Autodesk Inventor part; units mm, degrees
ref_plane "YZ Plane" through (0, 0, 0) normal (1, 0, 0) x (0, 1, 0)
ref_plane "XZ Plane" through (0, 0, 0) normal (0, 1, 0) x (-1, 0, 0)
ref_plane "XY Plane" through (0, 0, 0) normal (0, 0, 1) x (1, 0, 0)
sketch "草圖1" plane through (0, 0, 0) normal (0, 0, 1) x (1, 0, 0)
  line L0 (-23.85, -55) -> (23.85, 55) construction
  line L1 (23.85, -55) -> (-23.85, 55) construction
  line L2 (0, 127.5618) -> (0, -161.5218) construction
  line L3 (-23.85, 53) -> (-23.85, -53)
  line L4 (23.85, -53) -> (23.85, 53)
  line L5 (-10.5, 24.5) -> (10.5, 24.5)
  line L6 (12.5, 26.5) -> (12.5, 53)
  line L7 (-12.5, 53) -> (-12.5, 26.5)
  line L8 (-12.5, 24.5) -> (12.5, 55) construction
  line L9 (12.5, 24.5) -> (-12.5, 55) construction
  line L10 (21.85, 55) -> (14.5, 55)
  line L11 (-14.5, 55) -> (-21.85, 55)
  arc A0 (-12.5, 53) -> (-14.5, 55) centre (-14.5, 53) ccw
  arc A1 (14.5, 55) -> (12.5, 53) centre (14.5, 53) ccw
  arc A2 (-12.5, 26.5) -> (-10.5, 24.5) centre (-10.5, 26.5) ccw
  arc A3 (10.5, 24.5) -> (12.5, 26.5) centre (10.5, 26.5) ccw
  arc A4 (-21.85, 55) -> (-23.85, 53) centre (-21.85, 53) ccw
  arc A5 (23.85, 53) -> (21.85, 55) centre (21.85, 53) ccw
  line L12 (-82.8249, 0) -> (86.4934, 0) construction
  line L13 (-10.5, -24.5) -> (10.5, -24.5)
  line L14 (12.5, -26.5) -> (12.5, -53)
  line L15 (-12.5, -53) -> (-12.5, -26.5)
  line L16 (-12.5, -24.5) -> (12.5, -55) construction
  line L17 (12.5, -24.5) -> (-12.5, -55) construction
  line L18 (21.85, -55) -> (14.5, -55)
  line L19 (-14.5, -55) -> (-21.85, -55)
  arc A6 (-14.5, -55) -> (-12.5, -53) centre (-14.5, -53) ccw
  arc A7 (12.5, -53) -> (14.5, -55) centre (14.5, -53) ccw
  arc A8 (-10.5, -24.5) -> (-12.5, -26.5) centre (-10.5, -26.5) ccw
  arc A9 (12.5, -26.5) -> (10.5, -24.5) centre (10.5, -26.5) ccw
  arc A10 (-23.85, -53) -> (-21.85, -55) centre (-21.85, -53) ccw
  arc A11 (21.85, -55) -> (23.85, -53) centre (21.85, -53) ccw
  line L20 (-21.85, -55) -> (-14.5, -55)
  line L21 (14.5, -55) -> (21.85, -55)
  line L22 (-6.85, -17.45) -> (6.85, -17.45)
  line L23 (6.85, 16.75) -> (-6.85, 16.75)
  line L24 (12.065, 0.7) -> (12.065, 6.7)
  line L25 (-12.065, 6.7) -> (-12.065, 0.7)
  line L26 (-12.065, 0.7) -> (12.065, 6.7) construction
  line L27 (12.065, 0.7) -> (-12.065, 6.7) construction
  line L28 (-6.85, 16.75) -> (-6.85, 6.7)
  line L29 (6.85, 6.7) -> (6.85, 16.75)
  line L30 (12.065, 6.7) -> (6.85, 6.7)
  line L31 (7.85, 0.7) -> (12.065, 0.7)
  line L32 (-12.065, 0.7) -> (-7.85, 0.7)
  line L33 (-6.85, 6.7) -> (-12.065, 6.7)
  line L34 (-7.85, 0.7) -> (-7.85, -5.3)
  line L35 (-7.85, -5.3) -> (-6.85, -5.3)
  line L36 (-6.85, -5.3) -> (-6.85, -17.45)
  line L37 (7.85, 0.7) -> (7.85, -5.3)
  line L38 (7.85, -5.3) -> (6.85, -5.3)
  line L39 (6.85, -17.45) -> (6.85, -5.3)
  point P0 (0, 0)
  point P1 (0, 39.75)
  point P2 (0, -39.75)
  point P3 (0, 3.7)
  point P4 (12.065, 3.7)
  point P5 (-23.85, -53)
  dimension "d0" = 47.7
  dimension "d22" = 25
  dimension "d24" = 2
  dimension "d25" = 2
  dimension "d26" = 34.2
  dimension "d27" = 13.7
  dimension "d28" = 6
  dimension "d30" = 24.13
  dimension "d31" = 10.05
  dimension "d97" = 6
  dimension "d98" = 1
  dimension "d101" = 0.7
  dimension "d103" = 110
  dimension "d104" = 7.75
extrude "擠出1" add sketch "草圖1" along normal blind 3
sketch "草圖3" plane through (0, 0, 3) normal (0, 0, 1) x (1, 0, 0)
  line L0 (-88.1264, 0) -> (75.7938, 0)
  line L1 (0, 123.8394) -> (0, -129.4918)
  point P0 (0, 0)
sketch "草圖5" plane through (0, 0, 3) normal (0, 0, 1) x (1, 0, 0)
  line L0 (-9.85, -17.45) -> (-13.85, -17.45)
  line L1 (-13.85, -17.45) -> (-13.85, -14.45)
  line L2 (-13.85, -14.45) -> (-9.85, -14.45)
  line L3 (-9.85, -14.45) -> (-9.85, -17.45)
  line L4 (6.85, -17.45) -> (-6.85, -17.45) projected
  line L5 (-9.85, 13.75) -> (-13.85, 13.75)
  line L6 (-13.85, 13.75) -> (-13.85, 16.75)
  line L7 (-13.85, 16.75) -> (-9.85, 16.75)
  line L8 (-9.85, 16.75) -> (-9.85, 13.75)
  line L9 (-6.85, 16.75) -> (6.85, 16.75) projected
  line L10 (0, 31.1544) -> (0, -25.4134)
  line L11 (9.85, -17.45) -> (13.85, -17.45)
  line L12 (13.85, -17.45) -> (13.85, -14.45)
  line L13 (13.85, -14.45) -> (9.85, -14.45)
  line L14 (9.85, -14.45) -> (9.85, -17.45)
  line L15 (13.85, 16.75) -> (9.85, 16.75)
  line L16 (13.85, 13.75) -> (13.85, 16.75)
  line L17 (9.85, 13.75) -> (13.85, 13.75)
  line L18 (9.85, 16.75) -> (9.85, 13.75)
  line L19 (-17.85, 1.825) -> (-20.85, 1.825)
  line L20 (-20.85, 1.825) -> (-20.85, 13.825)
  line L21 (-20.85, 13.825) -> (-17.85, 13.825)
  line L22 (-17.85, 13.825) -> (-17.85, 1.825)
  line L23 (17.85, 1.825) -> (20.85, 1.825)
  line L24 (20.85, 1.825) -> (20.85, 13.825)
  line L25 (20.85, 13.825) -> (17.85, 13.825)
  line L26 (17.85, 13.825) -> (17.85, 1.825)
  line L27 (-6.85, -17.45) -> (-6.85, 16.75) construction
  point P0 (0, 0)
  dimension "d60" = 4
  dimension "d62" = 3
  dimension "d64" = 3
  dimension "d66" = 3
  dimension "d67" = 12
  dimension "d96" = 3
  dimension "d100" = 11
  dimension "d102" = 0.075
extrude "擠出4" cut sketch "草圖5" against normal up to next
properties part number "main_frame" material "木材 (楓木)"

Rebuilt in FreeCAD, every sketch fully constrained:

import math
import FreeCAD as App
import Part
import Sketcher

V = App.Vector
Q = App.Units.Quantity


def add_polygon(sketch, points):
    """Adds a closed chain of lines whose ends are joined by coincident constraints."""
    first, n = sketch.GeometryCount, len(points)
    for a, b in zip(points, points[1:] + points[:1]):
        sketch.addGeometry(Part.LineSegment(App.Vector(*a, 0), App.Vector(*b, 0)), False)
    for i in range(n):
        sketch.addConstraint(Sketcher.Constraint("Coincident", first + i, 2, first + (i + 1) % n, 1))

doc = App.newDocument("Part")
body = doc.addObject("PartDesign::Body", "Body")

# Sketch on XY plane
sketch1 = body.newObject("Sketcher::SketchObject", "Sketch")
sketch1.AttachmentSupport = (doc.getObject("XY_Plane"), [""])
sketch1.MapMode = "FlatFace"
sketch1.addGeometry(Part.ArcOfCircle(Part.Circle(V(-21.85, 53, 0), V(0, 0, 1), 2), math.radians(90), math.radians(180)), False)  # 0
sketch1.addGeometry(Part.LineSegment(V(-23.85, 53, 0), V(-23.85, -53, 0)), False)  # 1
sketch1.addGeometry(Part.ArcOfCircle(Part.Circle(V(-21.85, -53, 0), V(0, 0, 1), 2), math.radians(180), math.radians(270)), False)  # 2
sketch1.addGeometry(Part.LineSegment(V(-21.85, -55, 0), V(-14.5, -55, 0)), False)  # 3
sketch1.addGeometry(Part.ArcOfCircle(Part.Circle(V(-14.5, -53, 0), V(0, 0, 1), 2), math.radians(-90), math.radians(0)), False)  # 4
sketch1.addGeometry(Part.LineSegment(V(-12.5, -53, 0), V(-12.5, -26.5, 0)), False)  # 5
sketch1.addGeometry(Part.ArcOfCircle(Part.Circle(V(-10.5, -26.5, 0), V(0, 0, 1), 2), math.radians(90), math.radians(180)), False)  # 6
sketch1.addGeometry(Part.LineSegment(V(-10.5, -24.5, 0), V(10.5, -24.5, 0)), False)  # 7
sketch1.addGeometry(Part.ArcOfCircle(Part.Circle(V(10.5, -26.5, 0), V(0, 0, 1), 2), math.radians(0), math.radians(90)), False)  # 8
sketch1.addGeometry(Part.LineSegment(V(12.5, -26.5, 0), V(12.5, -53, 0)), False)  # 9
sketch1.addGeometry(Part.ArcOfCircle(Part.Circle(V(14.5, -53, 0), V(0, 0, 1), 2), math.radians(180), math.radians(270)), False)  # 10
sketch1.addGeometry(Part.LineSegment(V(14.5, -55, 0), V(21.85, -55, 0)), False)  # 11
sketch1.addGeometry(Part.ArcOfCircle(Part.Circle(V(21.85, -53, 0), V(0, 0, 1), 2), math.radians(-90), math.radians(0)), False)  # 12
sketch1.addGeometry(Part.LineSegment(V(23.85, -53, 0), V(23.85, 53, 0)), False)  # 13
sketch1.addGeometry(Part.ArcOfCircle(Part.Circle(V(21.85, 53, 0), V(0, 0, 1), 2), math.radians(0), math.radians(90)), False)  # 14
sketch1.addGeometry(Part.LineSegment(V(21.85, 55, 0), V(14.5, 55, 0)), False)  # 15
sketch1.addGeometry(Part.ArcOfCircle(Part.Circle(V(14.5, 53, 0), V(0, 0, 1), 2), math.radians(90), math.radians(180)), False)  # 16
sketch1.addGeometry(Part.LineSegment(V(12.5, 53, 0), V(12.5, 26.5, 0)), False)  # 17
sketch1.addGeometry(Part.ArcOfCircle(Part.Circle(V(10.5, 26.5, 0), V(0, 0, 1), 2), math.radians(-90), math.radians(0)), False)  # 18
sketch1.addGeometry(Part.LineSegment(V(10.5, 24.5, 0), V(-10.5, 24.5, 0)), False)  # 19
sketch1.addGeometry(Part.ArcOfCircle(Part.Circle(V(-10.5, 26.5, 0), V(0, 0, 1), 2), math.radians(180), math.radians(270)), False)  # 20
sketch1.addGeometry(Part.LineSegment(V(-12.5, 26.5, 0), V(-12.5, 53, 0)), False)  # 21
sketch1.addGeometry(Part.ArcOfCircle(Part.Circle(V(-14.5, 53, 0), V(0, 0, 1), 2), math.radians(0), math.radians(90)), False)  # 22
sketch1.addGeometry(Part.LineSegment(V(-14.5, 55, 0), V(-21.85, 55, 0)), False)  # 23
add_polygon(sketch1, [(6.85, -17.45), (-6.85, -17.45), (-6.85, -5.3), (-7.85, -5.3), (-7.85, 0.7), (-12.065, 0.7), (-12.065, 6.7), (-6.85, 6.7), (-6.85, 16.75), (6.85, 16.75), (6.85, 6.7), (12.065, 6.7), (12.065, 0.7), (7.85, 0.7), (7.85, -5.3), (6.85, -5.3)])  # lines 24-39
sketch1.addConstraint([
    Sketcher.Constraint("Tangent", 0, 2, 1, 1),
    Sketcher.Constraint("Tangent", 1, 2, 2, 1),
    Sketcher.Constraint("Tangent", 2, 2, 3, 1),
    Sketcher.Constraint("Tangent", 3, 2, 4, 1),
    Sketcher.Constraint("Tangent", 4, 2, 5, 1),
    Sketcher.Constraint("Tangent", 5, 2, 6, 2),
    Sketcher.Constraint("Tangent", 6, 1, 7, 1),
    Sketcher.Constraint("Tangent", 7, 2, 8, 2),
    Sketcher.Constraint("Tangent", 8, 1, 9, 1),
    Sketcher.Constraint("Tangent", 9, 2, 10, 1),
    Sketcher.Constraint("Tangent", 10, 2, 11, 1),
    Sketcher.Constraint("Tangent", 11, 2, 12, 1),
    Sketcher.Constraint("Tangent", 12, 2, 13, 1),
    Sketcher.Constraint("Tangent", 13, 2, 14, 1),
    Sketcher.Constraint("Tangent", 14, 2, 15, 1),
    Sketcher.Constraint("Tangent", 15, 2, 16, 1),
    Sketcher.Constraint("Tangent", 16, 2, 17, 1),
    Sketcher.Constraint("Tangent", 17, 2, 18, 2),
    Sketcher.Constraint("Tangent", 18, 1, 19, 1),
    Sketcher.Constraint("Tangent", 19, 2, 20, 2),
    Sketcher.Constraint("Tangent", 20, 1, 21, 1),
    Sketcher.Constraint("Tangent", 21, 2, 22, 1),
    Sketcher.Constraint("Tangent", 22, 2, 23, 1),
    Sketcher.Constraint("Tangent", 23, 2, 0, 1),
    Sketcher.Constraint("Vertical", 1),
    Sketcher.Constraint("Horizontal", 3),
    Sketcher.Constraint("Vertical", 5),
    Sketcher.Constraint("Horizontal", 7),
    Sketcher.Constraint("Vertical", 9),
    Sketcher.Constraint("Horizontal", 11),
    Sketcher.Constraint("Vertical", 13),
    Sketcher.Constraint("Horizontal", 15),
    Sketcher.Constraint("Vertical", 17),
    Sketcher.Constraint("Horizontal", 19),
    Sketcher.Constraint("Vertical", 21),
    Sketcher.Constraint("Horizontal", 23),
    Sketcher.Constraint("Horizontal", 24),
    Sketcher.Constraint("Vertical", 25),
    Sketcher.Constraint("Horizontal", 26),
    Sketcher.Constraint("Vertical", 27),
    Sketcher.Constraint("Horizontal", 28),
    Sketcher.Constraint("Vertical", 29),
    Sketcher.Constraint("Horizontal", 30),
    Sketcher.Constraint("Vertical", 31),
    Sketcher.Constraint("Horizontal", 32),
    Sketcher.Constraint("Vertical", 33),
    Sketcher.Constraint("Horizontal", 34),
    Sketcher.Constraint("Vertical", 35),
    Sketcher.Constraint("Horizontal", 36),
    Sketcher.Constraint("Vertical", 37),
    Sketcher.Constraint("Horizontal", 38),
    Sketcher.Constraint("Vertical", 39),
    Sketcher.Constraint("Equal", 0, 2),
    Sketcher.Constraint("Equal", 2, 4),
    Sketcher.Constraint("Equal", 4, 6),
    Sketcher.Constraint("Equal", 6, 8),
    Sketcher.Constraint("Equal", 8, 10),
    Sketcher.Constraint("Equal", 10, 12),
    Sketcher.Constraint("Equal", 12, 14),
    Sketcher.Constraint("Equal", 14, 16),
    Sketcher.Constraint("Equal", 16, 18),
    Sketcher.Constraint("Equal", 18, 20),
    Sketcher.Constraint("Equal", 20, 22),
    Sketcher.Constraint("Symmetric", 0, 3, 12, 3, -1, 1),
    Sketcher.Constraint("Symmetric", 4, 3, 16, 3, -1, 1),
    Sketcher.Constraint("Symmetric", 8, 3, 20, 3, -1, 1),
    Sketcher.Constraint("Symmetric", 4, 3, 10, 3, -2),
    Sketcher.Constraint("Symmetric", 30, 2, 33, 2, -2),
    Sketcher.Constraint("Symmetric", 28, 2, 35, 2, -2),
    Sketcher.Constraint("Symmetric", 26, 2, 37, 2, -2),
    Sketcher.Constraint("Vertical", 25, 2, 30, 2),
    Sketcher.Constraint("Vertical", 33, 2, 38, 2),
    Sketcher.Constraint("Equal", 27, 29),
    Sketcher.Constraint("Radius", 0, Q("2 mm")),
    Sketcher.Constraint("DistanceX", 26, 2, 26, 1, Q("1 mm")),
    Sketcher.Constraint("DistanceY", 27, 1, 27, 2, Q("6 mm")),
    Sketcher.Constraint("DistanceX", 24, 2, 24, 1, Q("13.7 mm")),
    Sketcher.Constraint("DistanceX", 4, 3, 8, 3, Q("25 mm")),
    Sketcher.Constraint("DistanceY", 31, 1, 31, 2, Q("10.05 mm")),
    Sketcher.Constraint("DistanceY", -1, 1, 27, 2, Q("0.7 mm")),
    Sketcher.Constraint("DistanceY", 1, 2, 1, 1, Q("106 mm")),
    Sketcher.Constraint("DistanceY", 31, 2, 19, 2, Q("7.75 mm")),
    Sketcher.Constraint("DistanceX", 3, 1, 3, 2, Q("7.35 mm")),
    Sketcher.Constraint("DistanceY", 25, 1, 25, 2, Q("12.15 mm")),
    Sketcher.Constraint("DistanceX", 28, 2, 28, 1, Q("4.215 mm")),
])
pad1 = body.newObject("PartDesign::Pad", "Pad")
pad1.Profile = sketch1
pad1.Length = 3

# Sketch on XY plane
sketch2 = body.newObject("Sketcher::SketchObject", "Sketch001")
sketch2.AttachmentSupport = (doc.getObject("XY_Plane"), [""])
sketch2.MapMode = "FlatFace"
sketch2.AttachmentOffset = App.Placement(V(0, 0, 3), App.Rotation())
add_polygon(sketch2, [(-13.85, -17.45), (-9.85, -17.45), (-9.85, -14.45), (-13.85, -14.45)])  # lines 0-3
add_polygon(sketch2, [(-13.85, 13.75), (-9.85, 13.75), (-9.85, 16.75), (-13.85, 16.75)])  # lines 4-7
add_polygon(sketch2, [(9.85, -14.45), (9.85, -17.45), (13.85, -17.45), (13.85, -14.45)])  # lines 8-11
add_polygon(sketch2, [(13.85, 13.75), (13.85, 16.75), (9.85, 16.75), (9.85, 13.75)])  # lines 12-15
add_polygon(sketch2, [(-20.85, 1.825), (-17.85, 1.825), (-17.85, 13.825), (-20.85, 13.825)])  # lines 16-19
add_polygon(sketch2, [(17.85, 13.825), (17.85, 1.825), (20.85, 1.825), (20.85, 13.825)])  # lines 20-23
sketch2.addConstraint([
    Sketcher.Constraint("Horizontal", 0),
    Sketcher.Constraint("Vertical", 1),
    Sketcher.Constraint("Horizontal", 2),
    Sketcher.Constraint("Vertical", 3),
    Sketcher.Constraint("Horizontal", 4),
    Sketcher.Constraint("Vertical", 5),
    Sketcher.Constraint("Horizontal", 6),
    Sketcher.Constraint("Vertical", 7),
    Sketcher.Constraint("Vertical", 8),
    Sketcher.Constraint("Horizontal", 9),
    Sketcher.Constraint("Vertical", 10),
    Sketcher.Constraint("Horizontal", 11),
    Sketcher.Constraint("Vertical", 12),
    Sketcher.Constraint("Horizontal", 13),
    Sketcher.Constraint("Vertical", 14),
    Sketcher.Constraint("Horizontal", 15),
    Sketcher.Constraint("Horizontal", 16),
    Sketcher.Constraint("Vertical", 17),
    Sketcher.Constraint("Horizontal", 18),
    Sketcher.Constraint("Vertical", 19),
    Sketcher.Constraint("Vertical", 20),
    Sketcher.Constraint("Horizontal", 21),
    Sketcher.Constraint("Vertical", 22),
    Sketcher.Constraint("Horizontal", 23),
    Sketcher.Constraint("Symmetric", 0, 2, 8, 2, -2),
    Sketcher.Constraint("Symmetric", 2, 2, 10, 2, -2),
    Sketcher.Constraint("Symmetric", 6, 2, 12, 2, -2),
    Sketcher.Constraint("Symmetric", 4, 2, 14, 2, -2),
    Sketcher.Constraint("Symmetric", 16, 2, 20, 2, -2),
    Sketcher.Constraint("Symmetric", 18, 2, 22, 2, -2),
    Sketcher.Constraint("Vertical", 1, 2, 4, 2),
    Sketcher.Constraint("Vertical", 3, 2, 6, 2),
    Sketcher.Constraint("Equal", 23, 1),
    Sketcher.Constraint("Equal", 3, 5),
    Sketcher.Constraint("DistanceX", 0, 1, 0, 2, Q("4 mm")),
    Sketcher.Constraint("DistanceX", 16, 1, 16, 2, Q("3 mm")),
    Sketcher.Constraint("DistanceY", 17, 1, 17, 2, Q("12 mm")),
    Sketcher.Constraint("DistanceX", 16, 2, 7, 2, Q("4 mm")),
    Sketcher.Constraint("DistanceY", 7, 2, 17, 2, Q("0.075 mm")),
    Sketcher.Constraint("DistanceY", 1, 2, 4, 2, Q("28.2 mm")),
    Sketcher.Constraint("DistanceX", 0, 2, 8, 2, Q("19.7 mm")),
    Sketcher.Constraint("DistanceY", 0, 2, -1, 1, Q("17.45 mm")),
])
pocket1 = body.newObject("PartDesign::Pocket", "Pocket")
pocket1.Profile = sketch2
pocket1.Length = 3

doc.recompute()
